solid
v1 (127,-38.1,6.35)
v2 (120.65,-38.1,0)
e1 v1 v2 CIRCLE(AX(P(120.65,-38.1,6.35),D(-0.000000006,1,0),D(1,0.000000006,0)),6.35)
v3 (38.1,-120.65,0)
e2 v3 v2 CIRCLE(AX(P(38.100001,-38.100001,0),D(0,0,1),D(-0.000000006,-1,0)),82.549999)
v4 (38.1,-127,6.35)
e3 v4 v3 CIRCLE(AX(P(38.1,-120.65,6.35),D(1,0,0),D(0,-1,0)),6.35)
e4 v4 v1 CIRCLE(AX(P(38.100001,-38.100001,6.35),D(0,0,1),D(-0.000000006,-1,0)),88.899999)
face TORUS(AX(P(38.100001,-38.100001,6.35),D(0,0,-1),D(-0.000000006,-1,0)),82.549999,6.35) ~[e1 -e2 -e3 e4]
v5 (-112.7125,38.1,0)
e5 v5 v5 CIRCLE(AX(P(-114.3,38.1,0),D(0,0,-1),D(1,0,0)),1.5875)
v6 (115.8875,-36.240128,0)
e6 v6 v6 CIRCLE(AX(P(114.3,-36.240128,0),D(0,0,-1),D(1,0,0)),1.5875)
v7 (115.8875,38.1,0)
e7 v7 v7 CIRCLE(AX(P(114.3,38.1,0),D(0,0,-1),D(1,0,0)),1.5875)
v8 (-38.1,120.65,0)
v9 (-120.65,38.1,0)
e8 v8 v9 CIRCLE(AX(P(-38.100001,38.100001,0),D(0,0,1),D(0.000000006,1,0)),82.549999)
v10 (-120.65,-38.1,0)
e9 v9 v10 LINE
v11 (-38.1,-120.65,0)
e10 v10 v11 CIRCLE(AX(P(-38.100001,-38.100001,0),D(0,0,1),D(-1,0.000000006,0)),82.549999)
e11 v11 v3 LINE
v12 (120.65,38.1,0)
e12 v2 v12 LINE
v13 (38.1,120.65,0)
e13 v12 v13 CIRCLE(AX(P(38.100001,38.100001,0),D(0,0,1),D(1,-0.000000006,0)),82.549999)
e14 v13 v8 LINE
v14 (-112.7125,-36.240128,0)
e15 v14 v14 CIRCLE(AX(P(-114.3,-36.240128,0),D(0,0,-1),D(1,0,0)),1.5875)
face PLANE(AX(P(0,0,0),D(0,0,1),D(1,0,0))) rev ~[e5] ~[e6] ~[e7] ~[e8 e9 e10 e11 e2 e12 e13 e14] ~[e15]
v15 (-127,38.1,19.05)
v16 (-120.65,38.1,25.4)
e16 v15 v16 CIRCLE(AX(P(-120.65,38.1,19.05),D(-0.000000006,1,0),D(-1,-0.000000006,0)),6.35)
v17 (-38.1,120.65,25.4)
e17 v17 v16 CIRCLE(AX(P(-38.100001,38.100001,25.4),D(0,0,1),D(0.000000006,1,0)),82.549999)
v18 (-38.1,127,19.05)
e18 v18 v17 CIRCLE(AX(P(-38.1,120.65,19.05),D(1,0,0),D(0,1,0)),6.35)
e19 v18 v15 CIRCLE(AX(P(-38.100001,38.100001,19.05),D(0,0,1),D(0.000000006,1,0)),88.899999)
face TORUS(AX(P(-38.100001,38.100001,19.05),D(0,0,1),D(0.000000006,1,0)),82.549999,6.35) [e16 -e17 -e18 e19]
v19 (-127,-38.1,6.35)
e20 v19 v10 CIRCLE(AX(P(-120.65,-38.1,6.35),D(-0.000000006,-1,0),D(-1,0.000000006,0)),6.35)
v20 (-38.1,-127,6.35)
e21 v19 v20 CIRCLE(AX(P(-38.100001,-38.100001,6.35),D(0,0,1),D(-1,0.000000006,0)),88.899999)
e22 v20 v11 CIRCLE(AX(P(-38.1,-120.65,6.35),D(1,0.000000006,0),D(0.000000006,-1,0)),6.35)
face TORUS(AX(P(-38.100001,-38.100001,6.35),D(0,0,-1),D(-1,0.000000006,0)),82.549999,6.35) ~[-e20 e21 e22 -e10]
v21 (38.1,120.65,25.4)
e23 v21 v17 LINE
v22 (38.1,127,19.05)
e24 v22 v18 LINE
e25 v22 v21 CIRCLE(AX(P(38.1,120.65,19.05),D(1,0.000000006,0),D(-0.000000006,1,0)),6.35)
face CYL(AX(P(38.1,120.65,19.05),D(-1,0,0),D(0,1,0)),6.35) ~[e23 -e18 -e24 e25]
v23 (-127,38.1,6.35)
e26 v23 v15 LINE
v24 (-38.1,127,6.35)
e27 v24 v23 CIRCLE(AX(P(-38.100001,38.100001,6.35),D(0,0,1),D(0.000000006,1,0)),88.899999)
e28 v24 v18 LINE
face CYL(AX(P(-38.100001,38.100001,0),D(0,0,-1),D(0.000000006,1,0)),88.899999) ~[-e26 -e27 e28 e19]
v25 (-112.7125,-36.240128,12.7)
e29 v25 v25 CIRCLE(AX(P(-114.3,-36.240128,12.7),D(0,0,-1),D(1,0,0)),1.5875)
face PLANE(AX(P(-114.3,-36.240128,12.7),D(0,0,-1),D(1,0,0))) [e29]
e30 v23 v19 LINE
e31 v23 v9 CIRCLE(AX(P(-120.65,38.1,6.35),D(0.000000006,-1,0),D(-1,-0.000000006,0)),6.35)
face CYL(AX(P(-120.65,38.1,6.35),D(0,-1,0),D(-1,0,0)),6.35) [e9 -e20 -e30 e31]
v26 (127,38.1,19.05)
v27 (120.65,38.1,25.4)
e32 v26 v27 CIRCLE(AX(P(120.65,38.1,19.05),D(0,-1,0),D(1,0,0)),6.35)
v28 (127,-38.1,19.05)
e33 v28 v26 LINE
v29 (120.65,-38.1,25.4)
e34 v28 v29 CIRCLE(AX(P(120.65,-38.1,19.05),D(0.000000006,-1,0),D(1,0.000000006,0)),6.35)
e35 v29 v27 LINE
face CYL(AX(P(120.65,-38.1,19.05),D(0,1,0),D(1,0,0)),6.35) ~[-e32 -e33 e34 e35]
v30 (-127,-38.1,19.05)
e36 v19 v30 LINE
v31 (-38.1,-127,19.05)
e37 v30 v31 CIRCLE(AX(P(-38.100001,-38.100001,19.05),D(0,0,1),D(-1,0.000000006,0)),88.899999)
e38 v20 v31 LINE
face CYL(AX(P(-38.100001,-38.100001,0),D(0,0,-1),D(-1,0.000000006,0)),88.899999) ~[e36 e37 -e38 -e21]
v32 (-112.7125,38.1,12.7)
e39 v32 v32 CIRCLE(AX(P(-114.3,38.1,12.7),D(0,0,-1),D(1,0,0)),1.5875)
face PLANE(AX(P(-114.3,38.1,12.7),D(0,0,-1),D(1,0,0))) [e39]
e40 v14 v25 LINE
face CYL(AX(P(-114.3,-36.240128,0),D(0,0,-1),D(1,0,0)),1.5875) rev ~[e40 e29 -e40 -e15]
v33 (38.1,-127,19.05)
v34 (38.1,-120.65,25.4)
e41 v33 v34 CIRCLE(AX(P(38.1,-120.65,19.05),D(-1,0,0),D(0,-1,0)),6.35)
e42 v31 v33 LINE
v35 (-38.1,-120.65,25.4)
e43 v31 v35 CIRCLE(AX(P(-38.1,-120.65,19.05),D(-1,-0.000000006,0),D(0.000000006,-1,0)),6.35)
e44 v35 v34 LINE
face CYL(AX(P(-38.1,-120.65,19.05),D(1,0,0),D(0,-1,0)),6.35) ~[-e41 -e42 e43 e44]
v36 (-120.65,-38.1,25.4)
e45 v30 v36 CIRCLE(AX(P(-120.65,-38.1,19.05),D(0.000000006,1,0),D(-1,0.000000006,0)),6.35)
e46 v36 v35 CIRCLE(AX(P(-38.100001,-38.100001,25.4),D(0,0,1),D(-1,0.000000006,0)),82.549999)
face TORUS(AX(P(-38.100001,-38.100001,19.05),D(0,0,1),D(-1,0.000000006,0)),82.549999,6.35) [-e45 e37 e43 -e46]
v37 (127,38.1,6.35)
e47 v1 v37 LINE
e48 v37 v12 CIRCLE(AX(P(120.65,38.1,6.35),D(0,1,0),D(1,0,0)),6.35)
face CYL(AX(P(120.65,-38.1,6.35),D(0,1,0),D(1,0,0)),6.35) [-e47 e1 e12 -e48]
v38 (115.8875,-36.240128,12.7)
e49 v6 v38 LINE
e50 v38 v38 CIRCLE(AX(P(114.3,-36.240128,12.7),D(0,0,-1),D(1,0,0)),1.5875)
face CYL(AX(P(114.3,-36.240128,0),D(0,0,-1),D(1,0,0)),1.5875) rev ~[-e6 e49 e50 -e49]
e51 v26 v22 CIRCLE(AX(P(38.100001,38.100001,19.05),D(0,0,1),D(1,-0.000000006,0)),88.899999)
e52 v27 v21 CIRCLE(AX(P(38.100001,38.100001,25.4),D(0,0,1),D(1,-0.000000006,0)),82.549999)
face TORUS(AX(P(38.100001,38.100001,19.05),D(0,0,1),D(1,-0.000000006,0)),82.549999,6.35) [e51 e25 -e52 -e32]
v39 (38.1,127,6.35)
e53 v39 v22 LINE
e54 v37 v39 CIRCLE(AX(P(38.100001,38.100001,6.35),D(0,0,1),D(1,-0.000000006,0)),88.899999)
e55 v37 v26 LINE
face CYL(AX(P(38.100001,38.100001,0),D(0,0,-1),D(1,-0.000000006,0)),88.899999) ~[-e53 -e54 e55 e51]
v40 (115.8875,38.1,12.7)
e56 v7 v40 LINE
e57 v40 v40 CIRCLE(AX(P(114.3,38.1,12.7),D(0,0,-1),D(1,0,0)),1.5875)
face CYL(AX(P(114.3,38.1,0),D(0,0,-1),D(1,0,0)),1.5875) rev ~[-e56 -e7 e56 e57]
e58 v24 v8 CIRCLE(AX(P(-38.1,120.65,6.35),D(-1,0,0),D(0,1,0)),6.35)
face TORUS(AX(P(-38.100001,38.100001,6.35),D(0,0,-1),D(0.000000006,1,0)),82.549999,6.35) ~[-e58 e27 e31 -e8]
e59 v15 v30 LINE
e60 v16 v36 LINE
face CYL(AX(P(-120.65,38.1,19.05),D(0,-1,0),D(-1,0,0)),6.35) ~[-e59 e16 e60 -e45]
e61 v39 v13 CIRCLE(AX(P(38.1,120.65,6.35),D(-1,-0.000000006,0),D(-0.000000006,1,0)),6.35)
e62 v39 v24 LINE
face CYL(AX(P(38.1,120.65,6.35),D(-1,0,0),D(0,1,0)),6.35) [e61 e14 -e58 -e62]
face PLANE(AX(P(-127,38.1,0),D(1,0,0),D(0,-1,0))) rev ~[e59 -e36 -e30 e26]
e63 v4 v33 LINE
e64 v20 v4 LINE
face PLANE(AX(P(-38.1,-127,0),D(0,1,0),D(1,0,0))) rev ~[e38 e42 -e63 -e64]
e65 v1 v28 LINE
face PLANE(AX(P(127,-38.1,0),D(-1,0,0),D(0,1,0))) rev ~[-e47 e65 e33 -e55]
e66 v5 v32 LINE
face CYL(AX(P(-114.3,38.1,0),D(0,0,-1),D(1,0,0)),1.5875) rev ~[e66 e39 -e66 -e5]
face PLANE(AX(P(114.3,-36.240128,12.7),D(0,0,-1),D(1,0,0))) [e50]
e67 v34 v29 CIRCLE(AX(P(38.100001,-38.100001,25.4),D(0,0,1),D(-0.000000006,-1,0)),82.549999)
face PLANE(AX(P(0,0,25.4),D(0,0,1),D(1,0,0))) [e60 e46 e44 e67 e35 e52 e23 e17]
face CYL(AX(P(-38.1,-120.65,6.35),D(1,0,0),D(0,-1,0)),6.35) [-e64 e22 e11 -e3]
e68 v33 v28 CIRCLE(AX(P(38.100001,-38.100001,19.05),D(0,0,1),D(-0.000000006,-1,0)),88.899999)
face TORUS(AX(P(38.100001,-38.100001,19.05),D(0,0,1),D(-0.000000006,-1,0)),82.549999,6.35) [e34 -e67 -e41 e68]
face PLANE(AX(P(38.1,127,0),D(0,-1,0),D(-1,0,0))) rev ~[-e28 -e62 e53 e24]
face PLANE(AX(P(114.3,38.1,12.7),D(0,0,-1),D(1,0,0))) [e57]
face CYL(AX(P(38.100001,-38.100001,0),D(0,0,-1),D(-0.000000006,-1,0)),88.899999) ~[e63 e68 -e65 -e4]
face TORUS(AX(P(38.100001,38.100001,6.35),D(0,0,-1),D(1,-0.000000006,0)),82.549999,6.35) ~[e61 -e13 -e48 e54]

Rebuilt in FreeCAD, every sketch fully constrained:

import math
import FreeCAD as App
import Part
import Sketcher
from FreeCAD import Vector
Q = App.Units.Quantity


def edges_at(feature, points):
    """Names of the edges that pass closest to the given points."""
    edges = feature.Shape.Edges
    near = lambda p: min(range(len(edges)), key=lambda i: edges[i].distToShape(Part.Vertex(*p))[0])
    return sorted({f"Edge{near(p) + 1}" for p in points})

doc = App.newDocument("Part")
params = doc.addObject("Spreadsheet::Sheet", "Params")
for row, (alias, value) in enumerate([
    ("sketch1_radius", "3.5 in"),
    ("sketch1_width", "3 in"),
    ("pad1_length", "1 in"),
    ("fillet_radius", "0.25 in"),
    ("sketch2_diameter", "0.125 in"),
    ("pocket1_length", "0.5 in"),
], start=1):
    params.set(f"A{row}", alias)
    params.set(f"B{row}", "=" + value)
    params.setAlias(f"B{row}", alias)

body = doc.addObject("PartDesign::Body", "Body")

# Sketch on XY plane
sketch1 = body.newObject("Sketcher::SketchObject", "Sketch")
sketch1.AttachmentSupport = (doc.getObject("XY_Plane"), [""])
sketch1.MapMode = "FlatFace"
sketch1.addGeometry([
    Part.ArcOfCircle(Part.Circle(Vector(38, 38, 0), Vector(0, 0, 1), 89), math.radians(0), math.radians(90)),  # 0
    Part.LineSegment(Vector(38, 127, 0), Vector(-38, 127, 0)),  # 1
    Part.ArcOfCircle(Part.Circle(Vector(-38, 38, 0), Vector(0, 0, 1), 89), math.radians(90), math.radians(180)),  # 2
    Part.LineSegment(Vector(-127, 38, 0), Vector(-127, -38, 0)),  # 3
    Part.ArcOfCircle(Part.Circle(Vector(-38, -38, 0), Vector(0, 0, 1), 89), math.radians(180), math.radians(270)),  # 4
    Part.LineSegment(Vector(-38, -127, 0), Vector(38, -127, 0)),  # 5
    Part.ArcOfCircle(Part.Circle(Vector(38, -38, 0), Vector(0, 0, 1), 89), math.radians(-90), math.radians(0)),  # 6
    Part.LineSegment(Vector(127, -38, 0), Vector(127, 38, 0)),  # 7
], False)
sketch1.addConstraint([
    Sketcher.Constraint("Tangent", 0, 2, 1, 1),
    Sketcher.Constraint("Tangent", 1, 2, 2, 1),
    Sketcher.Constraint("Tangent", 2, 2, 3, 1),
    Sketcher.Constraint("Tangent", 3, 2, 4, 1),
    Sketcher.Constraint("Tangent", 4, 2, 5, 1),
    Sketcher.Constraint("Tangent", 5, 2, 6, 1),
    Sketcher.Constraint("Tangent", 6, 2, 7, 1),
    Sketcher.Constraint("Tangent", 7, 2, 0, 1),
    Sketcher.Constraint("Horizontal", 1),
    Sketcher.Constraint("Vertical", 3),
    Sketcher.Constraint("Horizontal", 5),
    Sketcher.Constraint("Vertical", 7),
    Sketcher.Constraint("Equal", 0, 2),
    Sketcher.Constraint("Equal", 2, 4),
    Sketcher.Constraint("Equal", 4, 6),
    Sketcher.Constraint("Symmetric", 0, 3, 4, 3, -1, 1),
    Sketcher.Constraint("Equal", 5, 3),
    Sketcher.Constraint("Radius", 0, Q("3.5 in")),
    Sketcher.Constraint("DistanceX", 1, 2, 1, 1, Q("3 in")),
])
sketch1.setExpression("Constraints[17]", "Params.sketch1_radius")
sketch1.setExpression("Constraints[18]", "Params.sketch1_width")
pad1 = body.newObject("PartDesign::Pad", "Pad")
pad1.Profile = sketch1
pad1.setExpression("Length", "Params.pad1_length")
doc.recompute()

fillet = body.newObject("PartDesign::Fillet", "Fillet")
fillet.Base = (pad1, edges_at(pad1, [(-100.962, -100.962, 25.4), (-100.962, -100.962, 0)]))
fillet.setExpression("Radius", "Params.fillet_radius")

# Sketch on XY plane
sketch2 = body.newObject("Sketcher::SketchObject", "Sketch001")
sketch2.AttachmentSupport = (doc.getObject("XY_Plane"), [""])
sketch2.MapMode = "FlatFace"
sketch2.addGeometry([
    Part.Circle(Vector(-114.3, -36.2, 0), Vector(0, 0, 1), 1.6),
    Part.Circle(Vector(114.3, -36.2, 0), Vector(0, 0, 1), 1.6),
    Part.Circle(Vector(114.3, 38.1, 0), Vector(0, 0, 1), 1.6),
    Part.Circle(Vector(-114.3, 38.1, 0), Vector(0, 0, 1), 1.6),
], False)
sketch2.addConstraint([
    Sketcher.Constraint("Equal", 0, 1),
    Sketcher.Constraint("Equal", 1, 2),
    Sketcher.Constraint("Equal", 2, 3),
    Sketcher.Constraint("Symmetric", 0, 3, 1, 3, -2),
    Sketcher.Constraint("Symmetric", 2, 3, 3, 3, -2),
    Sketcher.Constraint("Vertical", 1, 3, 2, 3),
    Sketcher.Constraint("Diameter", 0, Q("0.125 in")),
    Sketcher.Constraint("DistanceX", 0, 3, 1, 3, Q("9 in")),
    Sketcher.Constraint("DistanceY", -1, 1, 2, 3, Q("1.5 in")),
    Sketcher.Constraint("DistanceY", 0, 3, -1, 1, 36.240128),
])
sketch2.setExpression("Constraints[6]", "Params.sketch2_diameter")
pocket1 = body.newObject("PartDesign::Pocket", "Pocket")
pocket1.Profile = sketch2
pocket1.setExpression("Length", "Params.pocket1_length")
pocket1.Reversed = True

doc.recompute()
